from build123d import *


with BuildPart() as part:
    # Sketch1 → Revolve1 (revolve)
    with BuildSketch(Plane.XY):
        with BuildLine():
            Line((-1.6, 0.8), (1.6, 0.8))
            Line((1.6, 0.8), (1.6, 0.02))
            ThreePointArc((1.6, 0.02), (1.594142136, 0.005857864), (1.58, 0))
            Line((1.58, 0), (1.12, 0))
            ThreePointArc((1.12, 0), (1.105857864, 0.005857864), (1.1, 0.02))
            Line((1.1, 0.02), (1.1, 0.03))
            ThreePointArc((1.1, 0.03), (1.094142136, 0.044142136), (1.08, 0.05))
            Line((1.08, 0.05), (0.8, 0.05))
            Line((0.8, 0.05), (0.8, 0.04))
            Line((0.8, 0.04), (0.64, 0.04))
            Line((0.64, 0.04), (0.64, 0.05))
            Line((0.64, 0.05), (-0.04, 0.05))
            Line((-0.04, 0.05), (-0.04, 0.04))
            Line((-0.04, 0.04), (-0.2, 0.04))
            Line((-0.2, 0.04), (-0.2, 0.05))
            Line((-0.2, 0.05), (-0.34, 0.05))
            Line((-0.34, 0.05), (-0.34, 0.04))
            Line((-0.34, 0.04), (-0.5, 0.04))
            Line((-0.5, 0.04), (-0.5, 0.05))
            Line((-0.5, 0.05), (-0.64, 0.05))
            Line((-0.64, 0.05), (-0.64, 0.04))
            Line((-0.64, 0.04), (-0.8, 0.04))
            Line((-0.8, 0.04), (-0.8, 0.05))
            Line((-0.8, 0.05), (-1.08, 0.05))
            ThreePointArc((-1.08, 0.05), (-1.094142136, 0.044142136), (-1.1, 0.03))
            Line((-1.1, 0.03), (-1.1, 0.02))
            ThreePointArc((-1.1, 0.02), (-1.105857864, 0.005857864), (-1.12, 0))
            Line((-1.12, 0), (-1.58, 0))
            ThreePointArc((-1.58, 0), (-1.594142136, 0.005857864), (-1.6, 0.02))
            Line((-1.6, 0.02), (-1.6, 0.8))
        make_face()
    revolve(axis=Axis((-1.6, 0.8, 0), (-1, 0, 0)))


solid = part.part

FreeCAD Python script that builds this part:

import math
import FreeCAD as App
import Part
import Sketcher

V = App.Vector
Q = App.Units.Quantity

doc = App.newDocument("Part")
body = doc.addObject("PartDesign::Body", "Body")

# Sketch on XY plane
sketch1 = body.newObject("Sketcher::SketchObject", "Sketch")
sketch1.AttachmentSupport = (doc.getObject("XY_Plane"), [""])
sketch1.MapMode = "FlatFace"
sketch1.addGeometry([
    Part.LineSegment(V(1.6, 0.8, 0), V(-1.6, 0.8, 0)),  # 0
    Part.LineSegment(V(-1.6, 0.8, 0), V(-1.6, 0.02, 0)),  # 1
    Part.ArcOfCircle(Part.Circle(V(-1.58, 0.02, 0), V(0, 0, 1), 0.02), math.radians(180), math.radians(270)),  # 2
    Part.LineSegment(V(-1.58, 0, 0), V(-1.12, 0, 0)),  # 3
    Part.ArcOfCircle(Part.Circle(V(-1.12, 0.02, 0), V(0, 0, 1), 0.02), math.radians(-90), math.radians(0)),  # 4
    Part.LineSegment(V(-1.1, 0.02, 0), V(-1.1, 0.03, 0)),  # 5
    Part.ArcOfCircle(Part.Circle(V(-1.08, 0.03, 0), V(0, 0, 1), 0.02), math.radians(90), math.radians(180)),  # 6
    Part.LineSegment(V(-1.08, 0.05, 0), V(-0.8, 0.05, 0)),  # 7
    Part.LineSegment(V(-0.8, 0.05, 0), V(-0.8, 0.04, 0)),  # 8
    Part.LineSegment(V(-0.8, 0.04, 0), V(-0.64, 0.04, 0)),  # 9
    Part.LineSegment(V(-0.64, 0.04, 0), V(-0.64, 0.05, 0)),  # 10
    Part.LineSegment(V(-0.64, 0.05, 0), V(-0.5, 0.05, 0)),  # 11
    Part.LineSegment(V(-0.5, 0.05, 0), V(-0.5, 0.04, 0)),  # 12
    Part.LineSegment(V(-0.5, 0.04, 0), V(-0.34, 0.04, 0)),  # 13
    Part.LineSegment(V(-0.34, 0.04, 0), V(-0.34, 0.05, 0)),  # 14
    Part.LineSegment(V(-0.34, 0.05, 0), V(-0.2, 0.05, 0)),  # 15
    Part.LineSegment(V(-0.2, 0.05, 0), V(-0.2, 0.04, 0)),  # 16
    Part.LineSegment(V(-0.2, 0.04, 0), V(-0.04, 0.04, 0)),  # 17
    Part.LineSegment(V(-0.04, 0.04, 0), V(-0.04, 0.05, 0)),  # 18
    Part.LineSegment(V(-0.04, 0.05, 0), V(0.64, 0.05, 0)),  # 19
    Part.LineSegment(V(0.64, 0.05, 0), V(0.64, 0.04, 0)),  # 20
    Part.LineSegment(V(0.64, 0.04, 0), V(0.8, 0.04, 0)),  # 21
    Part.LineSegment(V(0.8, 0.04, 0), V(0.8, 0.05, 0)),  # 22
    Part.LineSegment(V(0.8, 0.05, 0), V(1.08, 0.05, 0)),  # 23
    Part.ArcOfCircle(Part.Circle(V(1.08, 0.03, 0), V(0, 0, 1), 0.02), math.radians(0), math.radians(90)),  # 24
    Part.LineSegment(V(1.1, 0.03, 0), V(1.1, 0.02, 0)),  # 25
    Part.ArcOfCircle(Part.Circle(V(1.12, 0.02, 0), V(0, 0, 1), 0.02), math.radians(180), math.radians(270)),  # 26
    Part.LineSegment(V(1.12, 0, 0), V(1.58, 0, 0)),  # 27
    Part.ArcOfCircle(Part.Circle(V(1.58, 0.02, 0), V(0, 0, 1), 0.02), math.radians(-90), math.radians(0)),  # 28
    Part.LineSegment(V(1.6, 0.02, 0), V(1.6, 0.8, 0)),  # 29
], False)
sketch1.addGeometry(Part.LineSegment(V(1.6, 0.8, 0), V(-1.6, 0.8, 0)), True)  # axis
sketch1.addConstraint([
    Sketcher.Constraint("Coincident", 0, 2, 1, 1),
    Sketcher.Constraint("Tangent", 1, 2, 2, 1),
    Sketcher.Constraint("Tangent", 2, 2, 3, 1),
    Sketcher.Constraint("Tangent", 3, 2, 4, 1),
    Sketcher.Constraint("Tangent", 4, 2, 5, 1),
    Sketcher.Constraint("Tangent", 5, 2, 6, 2),
    Sketcher.Constraint("Tangent", 6, 1, 7, 1),
    Sketcher.Constraint("Coincident", 7, 2, 8, 1),
    Sketcher.Constraint("Coincident", 8, 2, 9, 1),
    Sketcher.Constraint("Coincident", 9, 2, 10, 1),
    Sketcher.Constraint("Coincident", 10, 2, 11, 1),
    Sketcher.Constraint("Coincident", 11, 2, 12, 1),
    Sketcher.Constraint("Coincident", 12, 2, 13, 1),
    Sketcher.Constraint("Coincident", 13, 2, 14, 1),
    Sketcher.Constraint("Coincident", 14, 2, 15, 1),
    Sketcher.Constraint("Coincident", 15, 2, 16, 1),
    Sketcher.Constraint("Coincident", 16, 2, 17, 1),
    Sketcher.Constraint("Coincident", 17, 2, 18, 1),
    Sketcher.Constraint("Coincident", 18, 2, 19, 1),
    Sketcher.Constraint("Coincident", 19, 2, 20, 1),
    Sketcher.Constraint("Coincident", 20, 2, 21, 1),
    Sketcher.Constraint("Coincident", 21, 2, 22, 1),
    Sketcher.Constraint("Coincident", 22, 2, 23, 1),
    Sketcher.Constraint("Tangent", 23, 2, 24, 2),
    Sketcher.Constraint("Tangent", 24, 1, 25, 1),
    Sketcher.Constraint("Tangent", 25, 2, 26, 1),
    Sketcher.Constraint("Tangent", 26, 2, 27, 1),
    Sketcher.Constraint("Tangent", 27, 2, 28, 1),
    Sketcher.Constraint("Tangent", 28, 2, 29, 1),
    Sketcher.Constraint("Coincident", 29, 2, 0, 1),
    Sketcher.Constraint("Horizontal", 0),
    Sketcher.Constraint("Vertical", 1),
    Sketcher.Constraint("Horizontal", 3),
    Sketcher.Constraint("Vertical", 5),
    Sketcher.Constraint("Horizontal", 7),
    Sketcher.Constraint("Vertical", 8),
    Sketcher.Constraint("Horizontal", 9),
    Sketcher.Constraint("Vertical", 10),
    Sketcher.Constraint("Horizontal", 11),
    Sketcher.Constraint("Vertical", 12),
    Sketcher.Constraint("Horizontal", 13),
    Sketcher.Constraint("Vertical", 14),
    Sketcher.Constraint("Horizontal", 15),
    Sketcher.Constraint("Vertical", 16),
    Sketcher.Constraint("Horizontal", 17),
    Sketcher.Constraint("Vertical", 18),
    Sketcher.Constraint("Horizontal", 19),
    Sketcher.Constraint("Vertical", 20),
    Sketcher.Constraint("Horizontal", 21),
    Sketcher.Constraint("Vertical", 22),
    Sketcher.Constraint("Horizontal", 23),
    Sketcher.Constraint("Vertical", 25),
    Sketcher.Constraint("Horizontal", 27),
    Sketcher.Constraint("Vertical", 29),
    Sketcher.Constraint("Horizontal", 30),
    Sketcher.Constraint("Coincident", 30, 1, 29, 2),
    Sketcher.Constraint("Equal", 2, 4),
    Sketcher.Constraint("Equal", 4, 6),
    Sketcher.Constraint("Equal", 6, 24),
    Sketcher.Constraint("Equal", 24, 26),
    Sketcher.Constraint("Equal", 26, 28),
    Sketcher.Constraint("Symmetric", 3, 2, 26, 2, -1, 1),
    Sketcher.Constraint("Symmetric", 2, 3, 28, 3, -2),
    Sketcher.Constraint("Symmetric", 10, 2, 19, 2, -2),
    Sketcher.Constraint("Symmetric", 8, 2, 21, 2, -2),
    Sketcher.Constraint("Horizontal", 6, 3, 24, 3),
    Sketcher.Constraint("Horizontal", 7, 2, 10, 2),
    Sketcher.Constraint("Horizontal", 9, 2, 12, 2),
    Sketcher.Constraint("Horizontal", 11, 2, 14, 2),
    Sketcher.Constraint("Horizontal", 13, 2, 16, 2),
    Sketcher.Constraint("Vertical", 1, 2, 30, 2),
    Sketcher.Constraint("Equal", 9, 13),
    Sketcher.Constraint("Equal", 11, 15),
    Sketcher.Constraint("Equal", 13, 17),
    Sketcher.Constraint("Equal", 5, 8),
    Sketcher.Constraint("Radius", 2, Q("0.02 mm")),
    Sketcher.Constraint("DistanceX", 0, 2, 0, 1, Q("3.2 mm")),
    Sketcher.Constraint("DistanceX", 3, 1, 3, 2, Q("0.46 mm")),
    Sketcher.Constraint("DistanceX", 7, 1, 7, 2, Q("0.28 mm")),
    Sketcher.Constraint("DistanceX", 9, 1, 9, 2, Q("0.16 mm")),
    Sketcher.Constraint("DistanceX", 11, 1, 11, 2, Q("0.14 mm")),
    Sketcher.Constraint("DistanceY", 1, 2, 1, 1, Q("0.78 mm")),
    Sketcher.Constraint("DistanceY", 5, 1, 5, 2, Q("0.01 mm")),
])
revolution = body.newObject("PartDesign::Revolution", "Revolution")
revolution.Profile = sketch1
revolution.ReferenceAxis = (sketch1, ["Axis0"])
revolution.Angle = 360

doc.recompute()
